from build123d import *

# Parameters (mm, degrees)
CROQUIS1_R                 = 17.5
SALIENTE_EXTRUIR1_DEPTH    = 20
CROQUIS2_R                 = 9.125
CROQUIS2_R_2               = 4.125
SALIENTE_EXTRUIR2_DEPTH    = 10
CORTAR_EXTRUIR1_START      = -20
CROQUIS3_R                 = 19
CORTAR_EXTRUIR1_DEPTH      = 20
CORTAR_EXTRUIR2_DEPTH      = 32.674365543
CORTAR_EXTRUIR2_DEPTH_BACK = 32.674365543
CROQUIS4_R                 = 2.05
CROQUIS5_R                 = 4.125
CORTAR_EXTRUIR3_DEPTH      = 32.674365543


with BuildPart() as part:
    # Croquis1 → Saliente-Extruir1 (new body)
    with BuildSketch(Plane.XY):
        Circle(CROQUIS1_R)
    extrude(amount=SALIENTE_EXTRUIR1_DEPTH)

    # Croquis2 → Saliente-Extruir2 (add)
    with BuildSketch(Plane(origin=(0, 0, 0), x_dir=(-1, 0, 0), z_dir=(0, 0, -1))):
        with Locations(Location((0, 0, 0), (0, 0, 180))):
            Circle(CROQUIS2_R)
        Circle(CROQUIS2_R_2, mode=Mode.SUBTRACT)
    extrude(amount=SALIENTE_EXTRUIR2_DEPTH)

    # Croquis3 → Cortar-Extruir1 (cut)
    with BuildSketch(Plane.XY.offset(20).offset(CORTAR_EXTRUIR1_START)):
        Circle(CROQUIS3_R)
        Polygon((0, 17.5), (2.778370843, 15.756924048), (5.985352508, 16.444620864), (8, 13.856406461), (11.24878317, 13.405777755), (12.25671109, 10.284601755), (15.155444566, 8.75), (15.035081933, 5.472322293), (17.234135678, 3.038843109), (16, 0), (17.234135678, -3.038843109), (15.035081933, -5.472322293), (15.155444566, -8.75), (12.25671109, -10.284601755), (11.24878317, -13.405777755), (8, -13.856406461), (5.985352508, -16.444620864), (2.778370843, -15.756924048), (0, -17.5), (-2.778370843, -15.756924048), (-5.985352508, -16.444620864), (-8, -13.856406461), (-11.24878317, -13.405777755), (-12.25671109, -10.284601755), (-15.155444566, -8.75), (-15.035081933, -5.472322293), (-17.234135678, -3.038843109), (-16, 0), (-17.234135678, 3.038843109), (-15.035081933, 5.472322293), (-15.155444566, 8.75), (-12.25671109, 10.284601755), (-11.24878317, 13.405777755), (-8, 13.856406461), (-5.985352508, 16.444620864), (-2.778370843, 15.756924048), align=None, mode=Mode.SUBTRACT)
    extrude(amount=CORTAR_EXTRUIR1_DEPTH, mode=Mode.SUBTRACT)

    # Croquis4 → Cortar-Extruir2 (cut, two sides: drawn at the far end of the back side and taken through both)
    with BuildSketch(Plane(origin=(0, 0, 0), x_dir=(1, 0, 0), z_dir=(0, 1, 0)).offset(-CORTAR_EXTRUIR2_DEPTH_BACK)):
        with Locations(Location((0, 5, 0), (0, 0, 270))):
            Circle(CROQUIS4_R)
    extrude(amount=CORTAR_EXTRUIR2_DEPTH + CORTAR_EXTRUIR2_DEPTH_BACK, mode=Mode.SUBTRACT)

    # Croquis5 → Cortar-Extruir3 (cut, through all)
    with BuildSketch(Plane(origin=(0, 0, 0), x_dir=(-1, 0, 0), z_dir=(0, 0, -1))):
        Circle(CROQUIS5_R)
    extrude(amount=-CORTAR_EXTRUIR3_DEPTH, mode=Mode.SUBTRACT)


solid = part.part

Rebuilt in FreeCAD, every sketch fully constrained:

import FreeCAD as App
import Part
import Sketcher
Q = App.Units.Quantity

doc = App.newDocument("Part")
body = doc.addObject("PartDesign::Body", "Body")

sketch1 = body.newObject("Sketcher::SketchObject", "Sketch")
sketch1.AttachmentSupport = (doc.getObject("XY_Plane"), [""])
sketch1.MapMode = "FlatFace"
sketch1.addGeometry(Part.Circle(App.Vector(0, 0, 0), App.Vector(0, 0, 1), 17.5), False)
sketch1.addConstraint([
    Sketcher.Constraint("Coincident", 0, 3, -1, 1),
    Sketcher.Constraint("Diameter", 0, Q("35 mm")),
])
pad1 = body.newObject("PartDesign::Pad", "Pad")
pad1.Profile = sketch1
pad1.Length = 20

sketch2 = body.newObject("Sketcher::SketchObject", "Sketch001")
sketch2.AttachmentSupport = (doc.getObject("XY_Plane"), [""])
sketch2.MapMode = "FlatFace"
sketch2.addGeometry([
    Part.Circle(App.Vector(0, 0, 0), App.Vector(0, 0, 1), 9.125),
    Part.Circle(App.Vector(0, 0, 0), App.Vector(0, 0, 1), 4.125),
], False)
sketch2.addConstraint([
    Sketcher.Constraint("Coincident", 0, 3, -1, 1),
    Sketcher.Constraint("Coincident", 1, 3, -1, 1),
    Sketcher.Constraint("Diameter", 0, Q("18.25 mm")),
    Sketcher.Constraint("Diameter", 1, Q("8.25 mm")),
])
pad2 = body.newObject("PartDesign::Pad", "Pad001")
pad2.Profile = sketch2
pad2.Length = 10
pad2.Reversed = True

sketch3 = body.newObject("Sketcher::SketchObject", "Sketch002")
sketch3.AttachmentSupport = (doc.getObject("XY_Plane"), [""])
sketch3.MapMode = "FlatFace"
sketch3.addGeometry([
    Part.Circle(App.Vector(0, 0, 0), App.Vector(0, 0, 1), 19),
    Part.LineSegment(App.Vector(-2.778371, 15.756924, 0), App.Vector(0, 17.5, 0)),
    Part.LineSegment(App.Vector(0, 17.5, 0), App.Vector(2.778371, 15.756924, 0)),
    Part.LineSegment(App.Vector(2.778371, 15.756924, 0), App.Vector(5.985353, 16.444621, 0)),
    Part.LineSegment(App.Vector(5.985353, 16.444621, 0), App.Vector(8, 13.856406, 0)),
    Part.LineSegment(App.Vector(8, 13.856406, 0), App.Vector(11.248783, 13.405778, 0)),
    Part.LineSegment(App.Vector(11.248783, 13.405778, 0), App.Vector(12.256711, 10.284602, 0)),
    Part.LineSegment(App.Vector(12.256711, 10.284602, 0), App.Vector(15.155445, 8.75, 0)),
    Part.LineSegment(App.Vector(15.155445, 8.75, 0), App.Vector(15.035082, 5.472322, 0)),
    Part.LineSegment(App.Vector(15.035082, 5.472322, 0), App.Vector(17.234136, 3.038843, 0)),
    Part.LineSegment(App.Vector(17.234136, 3.038843, 0), App.Vector(16, 0, 0)),
    Part.LineSegment(App.Vector(16, 0, 0), App.Vector(17.234136, -3.038843, 0)),
    Part.LineSegment(App.Vector(17.234136, -3.038843, 0), App.Vector(15.035082, -5.472322, 0)),
    Part.LineSegment(App.Vector(15.035082, -5.472322, 0), App.Vector(15.155445, -8.75, 0)),
    Part.LineSegment(App.Vector(15.155445, -8.75, 0), App.Vector(12.256711, -10.284602, 0)),
    Part.LineSegment(App.Vector(12.256711, -10.284602, 0), App.Vector(11.248783, -13.405778, 0)),
    Part.LineSegment(App.Vector(11.248783, -13.405778, 0), App.Vector(8, -13.856406, 0)),
    Part.LineSegment(App.Vector(8, -13.856406, 0), App.Vector(5.985353, -16.444621, 0)),
    Part.LineSegment(App.Vector(5.985353, -16.444621, 0), App.Vector(2.778371, -15.756924, 0)),
    Part.LineSegment(App.Vector(2.778371, -15.756924, 0), App.Vector(0, -17.5, 0)),
    Part.LineSegment(App.Vector(0, -17.5, 0), App.Vector(-2.778371, -15.756924, 0)),
    Part.LineSegment(App.Vector(-2.778371, -15.756924, 0), App.Vector(-5.985353, -16.444621, 0)),
    Part.LineSegment(App.Vector(-5.985353, -16.444621, 0), App.Vector(-8, -13.856406, 0)),
    Part.LineSegment(App.Vector(-8, -13.856406, 0), App.Vector(-11.248783, -13.405778, 0)),
    Part.LineSegment(App.Vector(-11.248783, -13.405778, 0), App.Vector(-12.256711, -10.284602, 0)),
    Part.LineSegment(App.Vector(-12.256711, -10.284602, 0), App.Vector(-15.155445, -8.75, 0)),
    Part.LineSegment(App.Vector(-15.155445, -8.75, 0), App.Vector(-15.035082, -5.472322, 0)),
    Part.LineSegment(App.Vector(-15.035082, -5.472322, 0), App.Vector(-17.234136, -3.038843, 0)),
    Part.LineSegment(App.Vector(-17.234136, -3.038843, 0), App.Vector(-16, 0, 0)),
    Part.LineSegment(App.Vector(-16, 0, 0), App.Vector(-17.234136, 3.038843, 0)),
    Part.LineSegment(App.Vector(-17.234136, 3.038843, 0), App.Vector(-15.035082, 5.472322, 0)),
    Part.LineSegment(App.Vector(-15.035082, 5.472322, 0), App.Vector(-15.155445, 8.75, 0)),
    Part.LineSegment(App.Vector(-15.155445, 8.75, 0), App.Vector(-12.256711, 10.284602, 0)),
    Part.LineSegment(App.Vector(-12.256711, 10.284602, 0), App.Vector(-11.248783, 13.405778, 0)),
    Part.LineSegment(App.Vector(-11.248783, 13.405778, 0), App.Vector(-8, 13.856406, 0)),
    Part.LineSegment(App.Vector(-8, 13.856406, 0), App.Vector(-5.985353, 16.444621, 0)),
    Part.LineSegment(App.Vector(-5.985353, 16.444621, 0), App.Vector(-2.778371, 15.756924, 0)),
], False)
sketch3.addConstraint([
    Sketcher.Constraint("Coincident", 1, 2, 2, 1),
    Sketcher.Constraint("Coincident", 2, 2, 3, 1),
    Sketcher.Constraint("Coincident", 3, 2, 4, 1),
    Sketcher.Constraint("Coincident", 4, 2, 5, 1),
    Sketcher.Constraint("Coincident", 5, 2, 6, 1),
    Sketcher.Constraint("Coincident", 6, 2, 7, 1),
    Sketcher.Constraint("Coincident", 7, 2, 8, 1),
    Sketcher.Constraint("Coincident", 8, 2, 9, 1),
    Sketcher.Constraint("Coincident", 9, 2, 10, 1),
    Sketcher.Constraint("Coincident", 10, 2, 11, 1),
    Sketcher.Constraint("Coincident", 11, 2, 12, 1),
    Sketcher.Constraint("Coincident", 12, 2, 13, 1),
    Sketcher.Constraint("Coincident", 13, 2, 14, 1),
    Sketcher.Constraint("Coincident", 14, 2, 15, 1),
    Sketcher.Constraint("Coincident", 15, 2, 16, 1),
    Sketcher.Constraint("Coincident", 16, 2, 17, 1),
    Sketcher.Constraint("Coincident", 17, 2, 18, 1),
    Sketcher.Constraint("Coincident", 18, 2, 19, 1),
    Sketcher.Constraint("Coincident", 19, 2, 20, 1),
    Sketcher.Constraint("Coincident", 20, 2, 21, 1),
    Sketcher.Constraint("Coincident", 21, 2, 22, 1),
    Sketcher.Constraint("Coincident", 22, 2, 23, 1),
    Sketcher.Constraint("Coincident", 23, 2, 24, 1),
    Sketcher.Constraint("Coincident", 24, 2, 25, 1),
    Sketcher.Constraint("Coincident", 25, 2, 26, 1),
    Sketcher.Constraint("Coincident", 26, 2, 27, 1),
    Sketcher.Constraint("Coincident", 27, 2, 28, 1),
    Sketcher.Constraint("Coincident", 28, 2, 29, 1),
    Sketcher.Constraint("Coincident", 29, 2, 30, 1),
    Sketcher.Constraint("Coincident", 30, 2, 31, 1),
    Sketcher.Constraint("Coincident", 31, 2, 32, 1),
    Sketcher.Constraint("Coincident", 32, 2, 33, 1),
    Sketcher.Constraint("Coincident", 33, 2, 34, 1),
    Sketcher.Constraint("Coincident", 34, 2, 35, 1),
    Sketcher.Constraint("Coincident", 35, 2, 36, 1),
    Sketcher.Constraint("Coincident", 36, 2, 1, 1),
    Sketcher.Constraint("Coincident", 0, 3, -1, 1),
    Sketcher.Constraint("Symmetric", 1, 2, 19, 2, -1, 1),
    Sketcher.Constraint("Symmetric", 2, 2, 20, 2, -1, 1),
    Sketcher.Constraint("Symmetric", 3, 2, 21, 2, -1, 1),
    Sketcher.Constraint("Symmetric", 4, 2, 22, 2, -1, 1),
    Sketcher.Constraint("Symmetric", 5, 2, 23, 2, -1, 1),
    Sketcher.Constraint("Symmetric", 6, 2, 24, 2, -1, 1),
    Sketcher.Constraint("Symmetric", 7, 2, 25, 2, -1, 1),
    Sketcher.Constraint("Symmetric", 8, 2, 26, 2, -1, 1),
    Sketcher.Constraint("Symmetric", 9, 2, 27, 2, -1, 1),
    Sketcher.Constraint("Symmetric", 10, 2, 28, 2, -1, 1),
    Sketcher.Constraint("Symmetric", 11, 2, 29, 2, -1, 1),
    Sketcher.Constraint("Symmetric", 12, 2, 30, 2, -1, 1),
    Sketcher.Constraint("Symmetric", 13, 2, 31, 2, -1, 1),
    Sketcher.Constraint("Symmetric", 14, 2, 32, 2, -1, 1),
    Sketcher.Constraint("Symmetric", 15, 2, 33, 2, -1, 1),
    Sketcher.Constraint("Symmetric", 16, 2, 34, 2, -1, 1),
    Sketcher.Constraint("Symmetric", 17, 2, 35, 2, -1, 1),
    Sketcher.Constraint("Symmetric", 18, 2, 36, 2, -1, 1),
    Sketcher.Constraint("Symmetric", 18, 2, 20, 2, -2),
    Sketcher.Constraint("Symmetric", 17, 2, 21, 2, -2),
    Sketcher.Constraint("Symmetric", 16, 2, 22, 2, -2),
    Sketcher.Constraint("Symmetric", 15, 2, 23, 2, -2),
    Sketcher.Constraint("Symmetric", 14, 2, 24, 2, -2),
    Sketcher.Constraint("Symmetric", 13, 2, 25, 2, -2),
    Sketcher.Constraint("Symmetric", 12, 2, 26, 2, -2),
    Sketcher.Constraint("Symmetric", 11, 2, 27, 2, -2),
    Sketcher.Constraint("PointOnObject", 1, 2, -2),
    Sketcher.Constraint("PointOnObject", 10, 2, -1),
    Sketcher.Constraint("Equal", 2, 3),
    Sketcher.Constraint("Equal", 3, 4),
    Sketcher.Constraint("Equal", 4, 5),
    Sketcher.Constraint("Equal", 5, 6),
    Sketcher.Constraint("Equal", 6, 7),
    Sketcher.Constraint("Equal", 7, 8),
    Sketcher.Constraint("Equal", 8, 9),
    Sketcher.Constraint("Equal", 9, 10),
    Sketcher.Constraint("Diameter", 0, Q("38 mm")),
    Sketcher.Constraint("DistanceX", -1, 1, 4, 2, Q("8 mm")),
    Sketcher.Constraint("DistanceX", -1, 1, 10, 2, Q("16 mm")),
    Sketcher.Constraint("DistanceY", -1, 1, 1, 2, Q("17.5 mm")),
    Sketcher.Constraint("DistanceY", -1, 1, 7, 2, Q("8.75 mm")),
    Sketcher.Constraint("DistanceY", -1, 1, 6, 2, Q("10.284602 mm")),
    Sketcher.Constraint("DistanceX", 5, 2, 8, 2, Q("3.786299 mm")),
    Sketcher.Constraint("DistanceY", 8, 2, 3, 2, Q("10.972299 mm")),
    Sketcher.Constraint("DistanceX", -1, 1, 2, 2, Q("2.778371 mm")),
    Sketcher.Constraint("DistanceY", -1, 1, 3, 2, Q("16.444621 mm")),
    Sketcher.Constraint("DistanceX", -1, 1, 6, 2, Q("12.256711 mm")),
])
pocket1 = body.newObject("PartDesign::Pocket", "Pocket")
pocket1.Profile = sketch3
pocket1.Length = 20
pocket1.Reversed = True

sketch4 = body.newObject("Sketcher::SketchObject", "Sketch003")
sketch4.AttachmentSupport = (doc.getObject("XZ_Plane"), [""])
sketch4.MapMode = "FlatFace"
sketch4.addGeometry(Part.Circle(App.Vector(0, -5, 0), App.Vector(0, 0, 1), 2.05), False)
sketch4.addConstraint([
    Sketcher.Constraint("PointOnObject", 0, 3, -2),
    Sketcher.Constraint("Diameter", 0, Q("4.1 mm")),
    Sketcher.Constraint("DistanceY", 0, 3, -1, 1, Q("5 mm")),
])
pocket2 = body.newObject("PartDesign::Pocket", "Pocket001")
pocket2.Profile = sketch4
pocket2.Type = "ThroughAll"
pocket2.Midplane = True

sketch5 = body.newObject("Sketcher::SketchObject", "Sketch004")
sketch5.AttachmentSupport = (doc.getObject("XY_Plane"), [""])
sketch5.MapMode = "FlatFace"
sketch5.addGeometry(Part.Circle(App.Vector(0, 0, 0), App.Vector(0, 0, 1), 4.125), False)
sketch5.addConstraint([
    Sketcher.Constraint("Coincident", 0, 3, -1, 1),
    Sketcher.Constraint("Diameter", 0, Q("8.25 mm")),
])
pocket3 = body.newObject("PartDesign::Pocket", "Pocket002")
pocket3.Profile = sketch5
pocket3.Type = "ThroughAll"
pocket3.Reversed = True

doc.recompute()
